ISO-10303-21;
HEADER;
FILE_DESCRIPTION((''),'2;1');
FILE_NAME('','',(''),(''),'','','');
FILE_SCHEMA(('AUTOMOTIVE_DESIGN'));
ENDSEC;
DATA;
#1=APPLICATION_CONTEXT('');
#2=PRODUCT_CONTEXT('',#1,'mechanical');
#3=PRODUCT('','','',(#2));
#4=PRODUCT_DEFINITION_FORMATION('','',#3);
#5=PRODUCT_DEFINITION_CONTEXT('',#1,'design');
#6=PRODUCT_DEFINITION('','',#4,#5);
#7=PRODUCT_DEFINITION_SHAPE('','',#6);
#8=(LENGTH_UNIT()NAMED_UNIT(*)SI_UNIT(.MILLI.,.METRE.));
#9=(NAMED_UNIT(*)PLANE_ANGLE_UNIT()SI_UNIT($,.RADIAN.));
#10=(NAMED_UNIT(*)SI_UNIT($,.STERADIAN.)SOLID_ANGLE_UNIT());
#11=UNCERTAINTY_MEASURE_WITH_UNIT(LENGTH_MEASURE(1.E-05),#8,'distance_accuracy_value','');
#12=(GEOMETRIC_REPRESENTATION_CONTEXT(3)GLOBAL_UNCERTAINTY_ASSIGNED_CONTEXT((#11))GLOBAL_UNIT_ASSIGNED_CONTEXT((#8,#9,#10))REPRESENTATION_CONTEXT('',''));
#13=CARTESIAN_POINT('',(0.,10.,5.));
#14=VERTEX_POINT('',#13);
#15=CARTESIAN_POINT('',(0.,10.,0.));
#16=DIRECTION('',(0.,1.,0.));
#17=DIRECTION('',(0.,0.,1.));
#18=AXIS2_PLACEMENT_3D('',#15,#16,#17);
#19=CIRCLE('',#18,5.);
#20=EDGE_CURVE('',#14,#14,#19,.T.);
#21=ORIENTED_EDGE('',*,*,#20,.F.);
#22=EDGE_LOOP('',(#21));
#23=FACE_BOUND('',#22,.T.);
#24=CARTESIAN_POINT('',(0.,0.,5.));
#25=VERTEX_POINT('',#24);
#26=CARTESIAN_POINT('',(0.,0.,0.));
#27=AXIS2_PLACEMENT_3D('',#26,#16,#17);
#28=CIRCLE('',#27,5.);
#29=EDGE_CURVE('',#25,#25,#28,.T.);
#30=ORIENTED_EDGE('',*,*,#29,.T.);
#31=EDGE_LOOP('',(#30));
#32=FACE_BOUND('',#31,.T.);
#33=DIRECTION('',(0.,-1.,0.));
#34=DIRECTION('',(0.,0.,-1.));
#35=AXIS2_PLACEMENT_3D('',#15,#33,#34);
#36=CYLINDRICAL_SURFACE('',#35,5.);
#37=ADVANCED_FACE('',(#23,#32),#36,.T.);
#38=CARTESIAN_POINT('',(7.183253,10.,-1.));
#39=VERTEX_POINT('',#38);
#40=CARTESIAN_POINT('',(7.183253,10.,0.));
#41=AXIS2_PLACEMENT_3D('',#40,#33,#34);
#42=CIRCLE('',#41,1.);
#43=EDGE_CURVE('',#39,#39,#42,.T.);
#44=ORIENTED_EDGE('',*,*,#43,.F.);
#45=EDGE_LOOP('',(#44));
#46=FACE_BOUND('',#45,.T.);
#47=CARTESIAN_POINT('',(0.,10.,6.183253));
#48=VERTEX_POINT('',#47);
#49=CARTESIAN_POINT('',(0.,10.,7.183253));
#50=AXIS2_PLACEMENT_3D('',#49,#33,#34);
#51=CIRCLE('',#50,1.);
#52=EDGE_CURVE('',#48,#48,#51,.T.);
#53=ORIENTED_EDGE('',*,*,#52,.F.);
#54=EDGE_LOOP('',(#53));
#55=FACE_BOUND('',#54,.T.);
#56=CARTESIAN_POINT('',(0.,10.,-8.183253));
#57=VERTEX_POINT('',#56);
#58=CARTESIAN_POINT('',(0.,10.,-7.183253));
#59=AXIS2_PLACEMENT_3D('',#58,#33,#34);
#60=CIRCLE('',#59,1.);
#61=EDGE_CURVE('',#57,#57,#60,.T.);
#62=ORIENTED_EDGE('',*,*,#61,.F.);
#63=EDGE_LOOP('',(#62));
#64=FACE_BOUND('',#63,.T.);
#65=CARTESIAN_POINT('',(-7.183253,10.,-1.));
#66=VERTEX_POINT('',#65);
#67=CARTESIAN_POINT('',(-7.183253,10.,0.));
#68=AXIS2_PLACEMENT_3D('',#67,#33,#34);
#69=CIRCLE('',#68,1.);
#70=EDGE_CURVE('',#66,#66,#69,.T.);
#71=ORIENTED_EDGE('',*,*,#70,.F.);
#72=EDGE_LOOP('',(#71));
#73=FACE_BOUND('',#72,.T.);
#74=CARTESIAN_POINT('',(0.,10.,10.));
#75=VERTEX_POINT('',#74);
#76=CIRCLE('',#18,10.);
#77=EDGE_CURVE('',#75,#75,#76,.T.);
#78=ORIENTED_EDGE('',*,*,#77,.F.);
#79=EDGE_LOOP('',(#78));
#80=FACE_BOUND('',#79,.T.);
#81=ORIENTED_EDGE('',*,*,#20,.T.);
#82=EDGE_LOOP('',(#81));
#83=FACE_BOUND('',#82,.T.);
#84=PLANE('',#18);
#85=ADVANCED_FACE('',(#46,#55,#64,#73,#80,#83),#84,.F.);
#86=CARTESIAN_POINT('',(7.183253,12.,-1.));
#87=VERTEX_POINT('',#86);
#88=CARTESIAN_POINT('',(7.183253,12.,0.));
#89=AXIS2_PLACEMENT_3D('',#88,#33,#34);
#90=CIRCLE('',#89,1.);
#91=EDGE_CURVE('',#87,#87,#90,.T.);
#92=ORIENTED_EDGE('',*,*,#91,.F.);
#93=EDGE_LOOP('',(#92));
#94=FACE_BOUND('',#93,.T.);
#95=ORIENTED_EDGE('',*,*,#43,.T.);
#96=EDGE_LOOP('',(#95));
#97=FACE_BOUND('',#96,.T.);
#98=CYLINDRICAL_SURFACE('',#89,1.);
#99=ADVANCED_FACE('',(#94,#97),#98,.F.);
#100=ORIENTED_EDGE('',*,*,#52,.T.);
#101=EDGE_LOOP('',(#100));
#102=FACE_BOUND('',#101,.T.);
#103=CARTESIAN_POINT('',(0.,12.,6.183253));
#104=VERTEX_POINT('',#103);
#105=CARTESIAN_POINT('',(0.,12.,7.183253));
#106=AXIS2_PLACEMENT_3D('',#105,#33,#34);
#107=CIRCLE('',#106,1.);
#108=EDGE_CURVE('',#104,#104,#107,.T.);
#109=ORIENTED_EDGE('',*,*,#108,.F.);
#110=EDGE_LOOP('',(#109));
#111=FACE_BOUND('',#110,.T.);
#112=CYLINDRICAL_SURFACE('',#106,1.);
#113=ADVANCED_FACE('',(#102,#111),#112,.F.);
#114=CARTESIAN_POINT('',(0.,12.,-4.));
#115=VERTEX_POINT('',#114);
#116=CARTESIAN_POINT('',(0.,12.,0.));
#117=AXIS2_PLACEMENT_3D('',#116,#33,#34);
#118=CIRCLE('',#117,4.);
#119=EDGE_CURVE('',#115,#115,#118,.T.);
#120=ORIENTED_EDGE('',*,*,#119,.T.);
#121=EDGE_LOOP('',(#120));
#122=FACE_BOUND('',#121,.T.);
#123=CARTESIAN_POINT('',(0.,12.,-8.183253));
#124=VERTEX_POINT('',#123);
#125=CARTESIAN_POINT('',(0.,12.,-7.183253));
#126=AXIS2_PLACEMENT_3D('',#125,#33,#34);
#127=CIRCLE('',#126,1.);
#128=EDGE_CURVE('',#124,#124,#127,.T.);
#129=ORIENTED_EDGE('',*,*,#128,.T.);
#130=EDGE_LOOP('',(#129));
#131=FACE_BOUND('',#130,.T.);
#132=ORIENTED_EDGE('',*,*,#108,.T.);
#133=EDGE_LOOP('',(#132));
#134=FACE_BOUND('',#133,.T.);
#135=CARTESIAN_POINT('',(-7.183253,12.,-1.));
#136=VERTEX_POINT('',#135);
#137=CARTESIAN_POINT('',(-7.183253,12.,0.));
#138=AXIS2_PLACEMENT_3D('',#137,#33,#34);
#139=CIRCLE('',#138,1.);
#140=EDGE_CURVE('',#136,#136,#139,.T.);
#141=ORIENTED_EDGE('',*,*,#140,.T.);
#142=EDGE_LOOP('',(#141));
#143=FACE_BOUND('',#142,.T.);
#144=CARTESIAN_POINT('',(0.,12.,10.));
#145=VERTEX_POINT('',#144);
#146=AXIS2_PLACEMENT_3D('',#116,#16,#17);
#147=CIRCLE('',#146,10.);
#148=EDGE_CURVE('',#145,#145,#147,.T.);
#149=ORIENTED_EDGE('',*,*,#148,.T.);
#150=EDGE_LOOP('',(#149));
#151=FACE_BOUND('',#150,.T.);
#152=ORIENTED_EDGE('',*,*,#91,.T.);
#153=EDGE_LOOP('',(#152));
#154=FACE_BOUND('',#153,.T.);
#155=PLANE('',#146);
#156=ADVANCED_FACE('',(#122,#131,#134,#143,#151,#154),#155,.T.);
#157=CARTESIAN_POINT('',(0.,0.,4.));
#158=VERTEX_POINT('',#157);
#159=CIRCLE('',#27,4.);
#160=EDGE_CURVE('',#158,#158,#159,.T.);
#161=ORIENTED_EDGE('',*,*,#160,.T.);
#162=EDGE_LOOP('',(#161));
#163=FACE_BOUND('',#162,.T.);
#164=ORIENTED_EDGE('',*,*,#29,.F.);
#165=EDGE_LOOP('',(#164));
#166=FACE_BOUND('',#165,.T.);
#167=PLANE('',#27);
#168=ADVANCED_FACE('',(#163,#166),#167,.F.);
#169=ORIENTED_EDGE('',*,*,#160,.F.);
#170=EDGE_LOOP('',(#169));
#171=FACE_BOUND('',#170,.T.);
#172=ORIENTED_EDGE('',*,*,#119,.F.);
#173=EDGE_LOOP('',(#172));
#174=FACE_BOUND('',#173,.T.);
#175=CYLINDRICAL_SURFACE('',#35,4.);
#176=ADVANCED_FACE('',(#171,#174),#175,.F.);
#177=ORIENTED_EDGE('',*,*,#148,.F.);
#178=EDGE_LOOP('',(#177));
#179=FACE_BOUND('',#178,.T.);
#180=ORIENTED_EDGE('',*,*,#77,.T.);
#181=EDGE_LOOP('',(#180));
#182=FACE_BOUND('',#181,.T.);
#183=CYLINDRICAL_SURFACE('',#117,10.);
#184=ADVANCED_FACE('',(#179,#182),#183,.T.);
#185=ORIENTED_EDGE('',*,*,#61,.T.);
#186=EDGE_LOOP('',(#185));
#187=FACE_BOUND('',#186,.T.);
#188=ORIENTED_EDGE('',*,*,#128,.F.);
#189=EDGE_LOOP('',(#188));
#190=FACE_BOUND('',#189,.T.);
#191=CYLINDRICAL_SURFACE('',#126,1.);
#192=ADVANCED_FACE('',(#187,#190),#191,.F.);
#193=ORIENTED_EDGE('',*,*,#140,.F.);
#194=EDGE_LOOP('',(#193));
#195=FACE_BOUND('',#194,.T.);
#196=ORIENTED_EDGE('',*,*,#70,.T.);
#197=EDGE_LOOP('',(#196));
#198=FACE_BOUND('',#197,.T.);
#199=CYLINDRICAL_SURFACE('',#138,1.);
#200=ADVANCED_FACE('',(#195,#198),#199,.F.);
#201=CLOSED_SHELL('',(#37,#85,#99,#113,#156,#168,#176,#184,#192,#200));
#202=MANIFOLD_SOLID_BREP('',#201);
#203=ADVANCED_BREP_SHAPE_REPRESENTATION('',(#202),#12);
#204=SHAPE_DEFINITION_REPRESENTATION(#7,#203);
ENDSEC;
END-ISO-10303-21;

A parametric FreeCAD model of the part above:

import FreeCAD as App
import Part
import Sketcher
from FreeCAD import Vector
Q = App.Units.Quantity

doc = App.newDocument("Part")
body = doc.addObject("PartDesign::Body", "Body")

# Sketch on XZ plane
sketch1 = body.newObject("Sketcher::SketchObject", "Sketch")
sketch1.AttachmentSupport = (doc.getObject("XZ_Plane"), [""])
sketch1.MapMode = "FlatFace"
sketch1.addGeometry([
    Part.Circle(Vector(0, 0, 0), Vector(0, 0, 1), 5),
    Part.Circle(Vector(0, 0, 0), Vector(0, 0, 1), 4),
], False)
sketch1.addConstraint([
    Sketcher.Constraint("Coincident", 0, 3, -1, 1),
    Sketcher.Constraint("Coincident", 1, 3, -1, 1),
    Sketcher.Constraint("Diameter", 0, Q("10 mm")),
    Sketcher.Constraint("Diameter", 1, Q("8 mm")),
])
pad1 = body.newObject("PartDesign::Pad", "Pad")
pad1.Profile = sketch1
pad1.Length = 10
pad1.Reversed = True

# Sketch on XZ plane
sketch2 = body.newObject("Sketcher::SketchObject", "Sketch001")
sketch2.AttachmentSupport = (doc.getObject("XZ_Plane"), [""])
sketch2.MapMode = "FlatFace"
sketch2.AttachmentOffset = App.Placement(Vector(0, 0, -10), App.Rotation())
sketch2.addGeometry(Part.Circle(Vector(0, 0, 0), Vector(0, 0, 1), 10), False)
sketch2.addConstraint([
    Sketcher.Constraint("Coincident", 0, 3, -1, 1),
    Sketcher.Constraint("Diameter", 0, Q("20 mm")),
])
pad2 = body.newObject("PartDesign::Pad", "Pad001")
pad2.Profile = sketch2
pad2.Length = 2
pad2.Reversed = True

# Sketch on XZ plane
sketch3 = body.newObject("Sketcher::SketchObject", "Sketch002")
sketch3.AttachmentSupport = (doc.getObject("XZ_Plane"), [""])
sketch3.MapMode = "FlatFace"
sketch3.AttachmentOffset = App.Placement(Vector(0, 0, -10), App.Rotation())
sketch3.addGeometry([
    Part.Circle(Vector(7.2, 0, 0), Vector(0, 0, 1), 1),
    Part.Circle(Vector(0, -7.2, 0), Vector(0, 0, 1), 1),
    Part.Circle(Vector(-7.2, 0, 0), Vector(0, 0, 1), 1),
    Part.Circle(Vector(0, 7.2, 0), Vector(0, 0, 1), 1),
], False)
sketch3.addConstraint([
    Sketcher.Constraint("Equal", 0, 1),
    Sketcher.Constraint("Equal", 1, 2),
    Sketcher.Constraint("Equal", 2, 3),
    Sketcher.Constraint("Symmetric", 0, 3, 2, 3, -1, 1),
    Sketcher.Constraint("Symmetric", 1, 3, 3, 3, -1, 1),
    Sketcher.Constraint("PointOnObject", 0, 3, -1),
    Sketcher.Constraint("PointOnObject", 1, 3, -2),
    Sketcher.Constraint("Diameter", 0, Q("2 mm")),
    Sketcher.Constraint("DistanceX", -1, 1, 0, 3, Q("7.183253 mm")),
    Sketcher.Constraint("DistanceY", 1, 3, -1, 1, Q("7.183253 mm")),
])
pocket1 = body.newObject("PartDesign::Pocket", "Pocket")
pocket1.Profile = sketch3
pocket1.Length = 2

# Sketch on XZ plane
sketch4 = body.newObject("Sketcher::SketchObject", "Sketch003")
sketch4.AttachmentSupport = (doc.getObject("XZ_Plane"), [""])
sketch4.MapMode = "FlatFace"
sketch4.AttachmentOffset = App.Placement(Vector(0, 0, -10), App.Rotation())
sketch4.addGeometry(Part.Circle(Vector(0, 0, 0), Vector(0, 0, 1), 4), False)
sketch4.addConstraint([
    Sketcher.Constraint("Coincident", 0, 3, -1, 1),
    Sketcher.Constraint("Diameter", 0, Q("8 mm")),
])
pocket2 = body.newObject("PartDesign::Pocket", "Pocket001")
pocket2.Profile = sketch4
pocket2.Length = 2

doc.recompute()
